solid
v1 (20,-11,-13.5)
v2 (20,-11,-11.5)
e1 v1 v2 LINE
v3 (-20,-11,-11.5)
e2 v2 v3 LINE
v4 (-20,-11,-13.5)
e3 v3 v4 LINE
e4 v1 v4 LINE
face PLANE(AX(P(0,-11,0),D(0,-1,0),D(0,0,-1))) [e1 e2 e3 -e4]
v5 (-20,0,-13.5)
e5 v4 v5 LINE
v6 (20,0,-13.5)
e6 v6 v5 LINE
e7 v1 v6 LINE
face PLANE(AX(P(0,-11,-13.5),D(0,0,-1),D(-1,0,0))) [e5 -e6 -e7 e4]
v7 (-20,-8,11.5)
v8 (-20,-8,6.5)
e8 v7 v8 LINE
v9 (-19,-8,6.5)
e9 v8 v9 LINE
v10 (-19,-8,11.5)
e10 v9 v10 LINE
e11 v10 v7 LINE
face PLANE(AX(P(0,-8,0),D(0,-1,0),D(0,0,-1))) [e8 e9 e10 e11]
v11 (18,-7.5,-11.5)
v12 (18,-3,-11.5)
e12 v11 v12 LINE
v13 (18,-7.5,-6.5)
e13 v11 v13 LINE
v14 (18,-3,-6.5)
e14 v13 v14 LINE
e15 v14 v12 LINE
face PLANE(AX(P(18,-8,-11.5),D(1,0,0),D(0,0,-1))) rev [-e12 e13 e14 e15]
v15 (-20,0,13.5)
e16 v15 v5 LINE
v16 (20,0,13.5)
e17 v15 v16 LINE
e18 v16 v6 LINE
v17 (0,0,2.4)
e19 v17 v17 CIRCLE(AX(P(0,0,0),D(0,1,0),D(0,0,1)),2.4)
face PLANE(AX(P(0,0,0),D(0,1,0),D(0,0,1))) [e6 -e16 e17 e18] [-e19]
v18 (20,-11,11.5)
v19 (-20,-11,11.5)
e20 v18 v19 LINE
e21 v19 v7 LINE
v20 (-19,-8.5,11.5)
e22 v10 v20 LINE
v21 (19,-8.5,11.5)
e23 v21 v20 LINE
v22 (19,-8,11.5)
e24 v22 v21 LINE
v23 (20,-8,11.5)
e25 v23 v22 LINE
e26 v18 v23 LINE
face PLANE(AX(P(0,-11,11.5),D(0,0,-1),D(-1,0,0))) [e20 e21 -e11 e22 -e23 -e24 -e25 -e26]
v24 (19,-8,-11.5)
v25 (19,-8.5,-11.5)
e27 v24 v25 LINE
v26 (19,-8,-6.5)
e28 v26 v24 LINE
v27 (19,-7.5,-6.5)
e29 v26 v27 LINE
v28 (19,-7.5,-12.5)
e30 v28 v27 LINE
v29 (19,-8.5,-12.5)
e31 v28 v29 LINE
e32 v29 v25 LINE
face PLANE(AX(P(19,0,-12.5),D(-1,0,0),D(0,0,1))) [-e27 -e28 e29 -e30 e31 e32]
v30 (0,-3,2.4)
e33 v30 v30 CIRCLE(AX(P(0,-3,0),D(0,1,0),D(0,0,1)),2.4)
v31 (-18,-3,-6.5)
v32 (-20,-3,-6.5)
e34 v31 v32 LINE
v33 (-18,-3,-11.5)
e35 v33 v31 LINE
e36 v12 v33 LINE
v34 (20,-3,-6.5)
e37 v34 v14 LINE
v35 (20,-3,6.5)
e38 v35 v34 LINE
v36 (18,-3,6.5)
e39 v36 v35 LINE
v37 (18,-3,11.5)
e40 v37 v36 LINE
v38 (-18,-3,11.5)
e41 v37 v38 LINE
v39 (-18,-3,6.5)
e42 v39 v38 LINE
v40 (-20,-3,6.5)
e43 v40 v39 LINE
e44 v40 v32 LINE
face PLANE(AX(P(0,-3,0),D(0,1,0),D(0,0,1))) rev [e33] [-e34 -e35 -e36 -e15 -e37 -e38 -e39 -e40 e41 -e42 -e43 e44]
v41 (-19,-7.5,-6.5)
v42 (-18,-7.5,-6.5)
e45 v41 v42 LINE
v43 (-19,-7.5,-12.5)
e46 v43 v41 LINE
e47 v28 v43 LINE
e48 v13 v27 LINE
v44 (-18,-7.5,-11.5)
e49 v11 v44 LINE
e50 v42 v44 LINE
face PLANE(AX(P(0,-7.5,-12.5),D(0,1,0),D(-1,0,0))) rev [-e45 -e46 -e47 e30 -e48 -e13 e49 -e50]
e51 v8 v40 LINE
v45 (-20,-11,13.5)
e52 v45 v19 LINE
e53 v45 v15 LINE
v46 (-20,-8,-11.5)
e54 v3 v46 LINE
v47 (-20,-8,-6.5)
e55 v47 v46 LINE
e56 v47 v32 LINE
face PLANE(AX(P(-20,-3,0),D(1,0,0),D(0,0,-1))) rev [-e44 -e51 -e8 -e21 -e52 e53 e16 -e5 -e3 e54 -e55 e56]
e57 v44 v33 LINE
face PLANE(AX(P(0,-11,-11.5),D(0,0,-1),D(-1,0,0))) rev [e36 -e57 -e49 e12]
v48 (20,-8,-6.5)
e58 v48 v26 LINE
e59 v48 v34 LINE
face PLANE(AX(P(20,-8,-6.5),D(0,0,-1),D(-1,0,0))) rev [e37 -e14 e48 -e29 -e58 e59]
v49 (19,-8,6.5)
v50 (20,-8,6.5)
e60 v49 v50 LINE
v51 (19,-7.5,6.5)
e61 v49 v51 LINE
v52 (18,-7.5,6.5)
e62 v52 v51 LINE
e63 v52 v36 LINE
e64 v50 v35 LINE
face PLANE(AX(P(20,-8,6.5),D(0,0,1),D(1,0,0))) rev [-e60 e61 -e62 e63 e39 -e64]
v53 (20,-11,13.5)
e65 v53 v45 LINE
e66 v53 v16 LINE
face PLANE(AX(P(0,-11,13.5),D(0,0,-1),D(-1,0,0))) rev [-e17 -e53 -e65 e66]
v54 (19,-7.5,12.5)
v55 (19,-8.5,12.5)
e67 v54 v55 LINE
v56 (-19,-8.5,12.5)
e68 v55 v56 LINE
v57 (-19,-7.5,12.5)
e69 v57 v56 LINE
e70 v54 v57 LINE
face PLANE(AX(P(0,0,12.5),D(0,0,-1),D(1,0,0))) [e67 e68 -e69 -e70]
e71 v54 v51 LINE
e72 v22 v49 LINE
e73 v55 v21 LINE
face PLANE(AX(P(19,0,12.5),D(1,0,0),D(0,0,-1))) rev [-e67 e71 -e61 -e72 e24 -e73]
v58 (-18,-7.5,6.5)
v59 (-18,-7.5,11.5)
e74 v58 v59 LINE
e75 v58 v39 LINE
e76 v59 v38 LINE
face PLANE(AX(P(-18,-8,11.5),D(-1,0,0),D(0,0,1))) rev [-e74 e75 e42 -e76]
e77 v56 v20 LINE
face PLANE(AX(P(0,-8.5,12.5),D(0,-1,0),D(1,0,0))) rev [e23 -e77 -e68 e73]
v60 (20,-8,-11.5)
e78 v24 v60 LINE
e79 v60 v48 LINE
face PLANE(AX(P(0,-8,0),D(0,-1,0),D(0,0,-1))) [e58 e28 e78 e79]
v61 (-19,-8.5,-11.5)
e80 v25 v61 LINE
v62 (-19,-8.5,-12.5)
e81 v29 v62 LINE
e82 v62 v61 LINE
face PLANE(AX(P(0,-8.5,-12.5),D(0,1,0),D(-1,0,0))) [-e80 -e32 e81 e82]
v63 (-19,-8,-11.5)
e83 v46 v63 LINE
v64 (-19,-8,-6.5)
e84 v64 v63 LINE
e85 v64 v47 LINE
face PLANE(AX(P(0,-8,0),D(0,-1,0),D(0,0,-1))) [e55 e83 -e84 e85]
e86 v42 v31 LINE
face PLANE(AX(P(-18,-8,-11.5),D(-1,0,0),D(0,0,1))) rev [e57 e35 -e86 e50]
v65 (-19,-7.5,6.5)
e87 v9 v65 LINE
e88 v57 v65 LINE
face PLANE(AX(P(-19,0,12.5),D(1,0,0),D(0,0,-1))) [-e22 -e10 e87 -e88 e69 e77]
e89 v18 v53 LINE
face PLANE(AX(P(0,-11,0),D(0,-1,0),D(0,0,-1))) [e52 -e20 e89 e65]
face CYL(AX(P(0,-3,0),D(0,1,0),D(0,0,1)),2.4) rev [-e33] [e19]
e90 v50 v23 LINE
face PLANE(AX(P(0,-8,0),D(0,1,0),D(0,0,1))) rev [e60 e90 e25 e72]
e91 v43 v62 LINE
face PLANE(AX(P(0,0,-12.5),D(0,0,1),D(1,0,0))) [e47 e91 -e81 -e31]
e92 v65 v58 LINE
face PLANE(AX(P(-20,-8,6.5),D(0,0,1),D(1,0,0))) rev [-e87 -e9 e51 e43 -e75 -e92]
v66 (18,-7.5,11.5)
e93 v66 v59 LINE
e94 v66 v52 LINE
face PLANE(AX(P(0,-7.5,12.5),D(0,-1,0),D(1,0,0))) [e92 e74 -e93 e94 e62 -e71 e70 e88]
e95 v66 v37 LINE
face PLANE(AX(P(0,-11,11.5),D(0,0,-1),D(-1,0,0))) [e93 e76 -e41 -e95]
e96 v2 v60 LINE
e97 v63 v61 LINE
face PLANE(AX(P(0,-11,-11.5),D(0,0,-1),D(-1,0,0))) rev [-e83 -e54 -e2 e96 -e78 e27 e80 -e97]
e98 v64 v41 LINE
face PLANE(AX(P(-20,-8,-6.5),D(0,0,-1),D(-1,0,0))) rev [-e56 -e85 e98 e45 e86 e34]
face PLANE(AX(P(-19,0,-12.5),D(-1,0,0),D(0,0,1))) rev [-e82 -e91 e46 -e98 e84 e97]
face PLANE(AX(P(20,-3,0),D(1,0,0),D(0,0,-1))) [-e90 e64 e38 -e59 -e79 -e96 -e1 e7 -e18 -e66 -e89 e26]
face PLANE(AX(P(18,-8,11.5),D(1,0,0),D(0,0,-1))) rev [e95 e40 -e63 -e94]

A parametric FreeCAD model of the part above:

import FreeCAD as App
import Part
import Sketcher

V = App.Vector

doc = App.newDocument("Part")
body = doc.addObject("PartDesign::Body", "Body")

sketch1 = body.newObject("Sketcher::SketchObject", "Sketch")
sketch1.AttachmentSupport = (doc.getObject("XZ_Plane"), [""])
sketch1.MapMode = "FlatFace"
sketch1.addGeometry(Part.LineSegment(V(-20, -20, 0), V(-20, 20, 0)), False)
sketch1.addGeometry(Part.LineSegment(V(-20, 20, 0), V(20, 20, 0)), False)
sketch1.addGeometry(Part.LineSegment(V(20, 20, 0), V(20, -20, 0)), False)
sketch1.addGeometry(Part.LineSegment(V(20, -20, 0), V(-20, -20, 0)), False)
sketch1.addGeometry(Part.Circle(V(0, 0, 0), V(0, 0, 1), 2.4), False)
sketch1.addConstraint(Sketcher.Constraint("Coincident", 0, 2, 1, 1))
sketch1.addConstraint(Sketcher.Constraint("Coincident", 1, 2, 2, 1))
sketch1.addConstraint(Sketcher.Constraint("Coincident", 2, 2, 3, 1))
sketch1.addConstraint(Sketcher.Constraint("Coincident", 3, 2, 0, 1))
sketch1.addConstraint(Sketcher.Constraint("Vertical", 0))
sketch1.addConstraint(Sketcher.Constraint("Horizontal", 1))
sketch1.addConstraint(Sketcher.Constraint("Vertical", 2))
sketch1.addConstraint(Sketcher.Constraint("Horizontal", 3))
sketch1.addConstraint(Sketcher.Constraint("Coincident", 4, 3, -1, 1))
sketch1.addConstraint(Sketcher.Constraint("Symmetric", 0, 2, 2, 2, -1, 1))
sketch1.addConstraint(Sketcher.Constraint("Equal", 3, 0))
sketch1.addConstraint(Sketcher.Constraint("Diameter", 4, 4.8))
sketch1.addConstraint(Sketcher.Constraint("DistanceX", 1, 1, 1, 2, 40.0))
pad1 = body.newObject("PartDesign::Pad", "Pad")
pad1.Profile = sketch1
pad1.Length = 3

sketch2 = body.newObject("Sketcher::SketchObject", "Sketch001")
sketch2.AttachmentSupport = (doc.getObject("XZ_Plane"), [""])
sketch2.MapMode = "FlatFace"
sketch2.AttachmentOffset = App.Placement(V(0, 0, 3), App.Rotation())
sketch2.addGeometry(Part.LineSegment(V(20, -11.5, 0), V(-20, -11.5, 0)), False)
sketch2.addGeometry(Part.LineSegment(V(-20, -11.5, 0), V(-20, -13.5, 0)), False)
sketch2.addGeometry(Part.LineSegment(V(-20, -13.5, 0), V(20, -13.5, 0)), False)
sketch2.addGeometry(Part.LineSegment(V(20, -13.5, 0), V(20, -11.5, 0)), False)
sketch2.addGeometry(Part.LineSegment(V(-20, 11.5, 0), V(20, 11.5, 0)), False)
sketch2.addGeometry(Part.LineSegment(V(20, 11.5, 0), V(20, 13.5, 0)), False)
sketch2.addGeometry(Part.LineSegment(V(20, 13.5, 0), V(-20, 13.5, 0)), False)
sketch2.addGeometry(Part.LineSegment(V(-20, 13.5, 0), V(-20, 11.5, 0)), False)
sketch2.addConstraint(Sketcher.Constraint("Coincident", 0, 2, 1, 1))
sketch2.addConstraint(Sketcher.Constraint("Coincident", 1, 2, 2, 1))
sketch2.addConstraint(Sketcher.Constraint("Coincident", 2, 2, 3, 1))
sketch2.addConstraint(Sketcher.Constraint("Coincident", 3, 2, 0, 1))
sketch2.addConstraint(Sketcher.Constraint("Coincident", 4, 2, 5, 1))
sketch2.addConstraint(Sketcher.Constraint("Coincident", 5, 2, 6, 1))
sketch2.addConstraint(Sketcher.Constraint("Coincident", 6, 2, 7, 1))
sketch2.addConstraint(Sketcher.Constraint("Coincident", 7, 2, 4, 1))
sketch2.addConstraint(Sketcher.Constraint("Horizontal", 0))
sketch2.addConstraint(Sketcher.Constraint("Vertical", 1))
sketch2.addConstraint(Sketcher.Constraint("Horizontal", 2))
sketch2.addConstraint(Sketcher.Constraint("Vertical", 3))
sketch2.addConstraint(Sketcher.Constraint("Horizontal", 4))
sketch2.addConstraint(Sketcher.Constraint("Vertical", 5))
sketch2.addConstraint(Sketcher.Constraint("Horizontal", 6))
sketch2.addConstraint(Sketcher.Constraint("Vertical", 7))
sketch2.addConstraint(Sketcher.Constraint("Symmetric", 0, 2, 4, 2, -1, 1))
sketch2.addConstraint(Sketcher.Constraint("Symmetric", 2, 2, 6, 2, -1, 1))
sketch2.addConstraint(Sketcher.Constraint("Vertical", 3, 2, 4, 2))
sketch2.addConstraint(Sketcher.Constraint("DistanceX", 0, 2, 0, 1, 40.0))
sketch2.addConstraint(Sketcher.Constraint("DistanceY", 1, 2, 1, 1, 2.0))
sketch2.addConstraint(Sketcher.Constraint("DistanceY", 3, 2, 4, 2, 23.0))
pad2 = body.newObject("PartDesign::Pad", "Pad001")
pad2.Profile = sketch2
pad2.Length = 8

sketch3 = body.newObject("Sketcher::SketchObject", "Sketch002")
sketch3.AttachmentSupport = (doc.getObject("XZ_Plane"), [""])
sketch3.MapMode = "FlatFace"
sketch3.AttachmentOffset = App.Placement(V(0, 0, 3), App.Rotation())
sketch3.addGeometry(Part.LineSegment(V(18, 11.5, 0), V(18, 6.5, 0)), False)
sketch3.addGeometry(Part.LineSegment(V(18, 6.5, 0), V(20, 6.5, 0)), False)
sketch3.addGeometry(Part.LineSegment(V(20, 6.5, 0), V(20, 11.5, 0)), False)
sketch3.addGeometry(Part.LineSegment(V(20, 11.5, 0), V(18, 11.5, 0)), False)
sketch3.addGeometry(Part.LineSegment(V(18, -6.5, 0), V(18, -11.5, 0)), False)
sketch3.addGeometry(Part.LineSegment(V(18, -11.5, 0), V(20, -11.5, 0)), False)
sketch3.addGeometry(Part.LineSegment(V(20, -11.5, 0), V(20, -6.5, 0)), False)
sketch3.addGeometry(Part.LineSegment(V(20, -6.5, 0), V(18, -6.5, 0)), False)
sketch3.addGeometry(Part.LineSegment(V(-20, -6.5, 0), V(-20, -11.5, 0)), False)
sketch3.addGeometry(Part.LineSegment(V(-20, -11.5, 0), V(-18, -11.5, 0)), False)
sketch3.addGeometry(Part.LineSegment(V(-18, -11.5, 0), V(-18, -6.5, 0)), False)
sketch3.addGeometry(Part.LineSegment(V(-18, -6.5, 0), V(-20, -6.5, 0)), False)
sketch3.addGeometry(Part.LineSegment(V(-20, 11.5, 0), V(-20, 6.5, 0)), False)
sketch3.addGeometry(Part.LineSegment(V(-20, 6.5, 0), V(-18, 6.5, 0)), False)
sketch3.addGeometry(Part.LineSegment(V(-18, 6.5, 0), V(-18, 11.5, 0)), False)
sketch3.addGeometry(Part.LineSegment(V(-18, 11.5, 0), V(-20, 11.5, 0)), False)
sketch3.addConstraint(Sketcher.Constraint("Coincident", 0, 2, 1, 1))
sketch3.addConstraint(Sketcher.Constraint("Coincident", 1, 2, 2, 1))
sketch3.addConstraint(Sketcher.Constraint("Coincident", 2, 2, 3, 1))
sketch3.addConstraint(Sketcher.Constraint("Coincident", 3, 2, 0, 1))
sketch3.addConstraint(Sketcher.Constraint("Coincident", 4, 2, 5, 1))
sketch3.addConstraint(Sketcher.Constraint("Coincident", 5, 2, 6, 1))
sketch3.addConstraint(Sketcher.Constraint("Coincident", 6, 2, 7, 1))
sketch3.addConstraint(Sketcher.Constraint("Coincident", 7, 2, 4, 1))
sketch3.addConstraint(Sketcher.Constraint("Coincident", 8, 2, 9, 1))
sketch3.addConstraint(Sketcher.Constraint("Coincident", 9, 2, 10, 1))
sketch3.addConstraint(Sketcher.Constraint("Coincident", 10, 2, 11, 1))
sketch3.addConstraint(Sketcher.Constraint("Coincident", 11, 2, 8, 1))
sketch3.addConstraint(Sketcher.Constraint("Coincident", 12, 2, 13, 1))
sketch3.addConstraint(Sketcher.Constraint("Coincident", 13, 2, 14, 1))
sketch3.addConstraint(Sketcher.Constraint("Coincident", 14, 2, 15, 1))
sketch3.addConstraint(Sketcher.Constraint("Coincident", 15, 2, 12, 1))
sketch3.addConstraint(Sketcher.Constraint("Vertical", 0))
sketch3.addConstraint(Sketcher.Constraint("Horizontal", 1))
sketch3.addConstraint(Sketcher.Constraint("Vertical", 2))
sketch3.addConstraint(Sketcher.Constraint("Horizontal", 3))
sketch3.addConstraint(Sketcher.Constraint("Vertical", 4))
sketch3.addConstraint(Sketcher.Constraint("Horizontal", 5))
sketch3.addConstraint(Sketcher.Constraint("Vertical", 6))
sketch3.addConstraint(Sketcher.Constraint("Horizontal", 7))
sketch3.addConstraint(Sketcher.Constraint("Vertical", 8))
sketch3.addConstraint(Sketcher.Constraint("Horizontal", 9))
sketch3.addConstraint(Sketcher.Constraint("Vertical", 10))
sketch3.addConstraint(Sketcher.Constraint("Horizontal", 11))
sketch3.addConstraint(Sketcher.Constraint("Vertical", 12))
sketch3.addConstraint(Sketcher.Constraint("Horizontal", 13))
sketch3.addConstraint(Sketcher.Constraint("Vertical", 14))
sketch3.addConstraint(Sketcher.Constraint("Horizontal", 15))
sketch3.addConstraint(Sketcher.Constraint("Symmetric", 2, 2, 8, 2, -1, 1))
sketch3.addConstraint(Sketcher.Constraint("Symmetric", 0, 2, 10, 2, -1, 1))
sketch3.addConstraint(Sketcher.Constraint("Symmetric", 6, 2, 12, 2, -1, 1))
sketch3.addConstraint(Sketcher.Constraint("Symmetric", 4, 2, 14, 2, -1, 1))
sketch3.addConstraint(Sketcher.Constraint("Symmetric", 5, 2, 8, 2, -2))
sketch3.addConstraint(Sketcher.Constraint("Symmetric", 7, 2, 10, 2, -2))
sketch3.addConstraint(Sketcher.Constraint("DistanceX", 1, 1, 1, 2, 2.0))
sketch3.addConstraint(Sketcher.Constraint("DistanceY", 0, 2, 0, 1, 5.0))
sketch3.addConstraint(Sketcher.Constraint("DistanceX", -1, 1, 0, 2, 18.0))
sketch3.addConstraint(Sketcher.Constraint("DistanceY", 4, 2, 0, 2, 18.0))
pad3 = body.newObject("PartDesign::Pad", "Pad002")
pad3.Profile = sketch3
pad3.Length = 5

sketch4 = body.newObject("Sketcher::SketchObject", "Sketch003")
sketch4.AttachmentSupport = (doc.getObject("XZ_Plane"), [""])
sketch4.MapMode = "FlatFace"
sketch4.AttachmentOffset = App.Placement(V(0, 0, 3), App.Rotation())
sketch4.addGeometry(Part.LineSegment(V(20, 13.5, 0), V(20, 20, 0)), False)
sketch4.addGeometry(Part.LineSegment(V(20, 20, 0), V(-20, 20, 0)), False)
sketch4.addGeometry(Part.LineSegment(V(-20, 20, 0), V(-20, 13.5, 0)), False)
sketch4.addGeometry(Part.LineSegment(V(-20, 13.5, 0), V(20, 13.5, 0)), False)
sketch4.addConstraint(Sketcher.Constraint("Coincident", 0, 2, 1, 1))
sketch4.addConstraint(Sketcher.Constraint("Coincident", 1, 2, 2, 1))
sketch4.addConstraint(Sketcher.Constraint("Coincident", 2, 2, 3, 1))
sketch4.addConstraint(Sketcher.Constraint("Coincident", 3, 2, 0, 1))
sketch4.addConstraint(Sketcher.Constraint("Vertical", 0))
sketch4.addConstraint(Sketcher.Constraint("Horizontal", 1))
sketch4.addConstraint(Sketcher.Constraint("Vertical", 2))
sketch4.addConstraint(Sketcher.Constraint("Horizontal", 3))
sketch4.addConstraint(Sketcher.Constraint("DistanceX", 1, 2, 1, 1, 40.0))
sketch4.addConstraint(Sketcher.Constraint("DistanceY", 0, 1, 0, 2, 6.5))
sketch4.addConstraint(Sketcher.Constraint("DistanceX", -1, 1, 0, 2, 20.0))
sketch4.addConstraint(Sketcher.Constraint("DistanceY", -1, 1, 0, 2, 20.0))
pocket1 = body.newObject("PartDesign::Pocket", "Pocket")
pocket1.Profile = sketch4
pocket1.Length = 3

sketch5 = body.newObject("Sketcher::SketchObject", "Sketch004")
sketch5.AttachmentSupport = (doc.getObject("XZ_Plane"), [""])
sketch5.MapMode = "FlatFace"
sketch5.AttachmentOffset = App.Placement(V(0, 0, 3), App.Rotation())
sketch5.addGeometry(Part.LineSegment(V(-20, -13.5, 0), V(-20, -20, 0)), False)
sketch5.addGeometry(Part.LineSegment(V(-20, -20, 0), V(20, -20, 0)), False)
sketch5.addGeometry(Part.LineSegment(V(20, -20, 0), V(20, -13.5, 0)), False)
sketch5.addGeometry(Part.LineSegment(V(20, -13.5, 0), V(-20, -13.5, 0)), False)
sketch5.addConstraint(Sketcher.Constraint("Coincident", 0, 2, 1, 1))
sketch5.addConstraint(Sketcher.Constraint("Coincident", 1, 2, 2, 1))
sketch5.addConstraint(Sketcher.Constraint("Coincident", 2, 2, 3, 1))
sketch5.addConstraint(Sketcher.Constraint("Coincident", 3, 2, 0, 1))
sketch5.addConstraint(Sketcher.Constraint("Vertical", 0))
sketch5.addConstraint(Sketcher.Constraint("Horizontal", 1))
sketch5.addConstraint(Sketcher.Constraint("Vertical", 2))
sketch5.addConstraint(Sketcher.Constraint("Horizontal", 3))
sketch5.addConstraint(Sketcher.Constraint("DistanceX", 1, 1, 1, 2, 40.0))
sketch5.addConstraint(Sketcher.Constraint("DistanceY", 0, 2, 0, 1, 6.5))
sketch5.addConstraint(Sketcher.Constraint("DistanceX", 0, 2, -1, 1, 20.0))
sketch5.addConstraint(Sketcher.Constraint("DistanceY", 0, 2, -1, 1, 20.0))
pocket2 = body.newObject("PartDesign::Pocket", "Pocket001")
pocket2.Profile = sketch5
pocket2.Length = 3

sketch6 = body.newObject("Sketcher::SketchObject", "Sketch005")
sketch6.AttachmentSupport = (doc.getObject("XY_Plane"), [""])
sketch6.MapMode = "FlatFace"
sketch6.AttachmentOffset = App.Placement(V(0, 0, -12.5), App.Rotation())
sketch6.addGeometry(Part.LineSegment(V(19, -7.5, 0), V(-19, -7.5, 0)), False)
sketch6.addGeometry(Part.LineSegment(V(-19, -7.5, 0), V(-19, -8.5, 0)), False)
sketch6.addGeometry(Part.LineSegment(V(-19, -8.5, 0), V(19, -8.5, 0)), False)
sketch6.addGeometry(Part.LineSegment(V(19, -8.5, 0), V(19, -7.5, 0)), False)
sketch6.addConstraint(Sketcher.Constraint("Coincident", 0, 2, 1, 1))
sketch6.addConstraint(Sketcher.Constraint("Coincident", 1, 2, 2, 1))
sketch6.addConstraint(Sketcher.Constraint("Coincident", 2, 2, 3, 1))
sketch6.addConstraint(Sketcher.Constraint("Coincident", 3, 2, 0, 1))
sketch6.addConstraint(Sketcher.Constraint("Horizontal", 0))
sketch6.addConstraint(Sketcher.Constraint("Vertical", 1))
sketch6.addConstraint(Sketcher.Constraint("Horizontal", 2))
sketch6.addConstraint(Sketcher.Constraint("Vertical", 3))
sketch6.addConstraint(Sketcher.Constraint("DistanceX", 0, 2, 0, 1, 38.0))
sketch6.addConstraint(Sketcher.Constraint("DistanceY", 1, 2, 1, 1, 1.0))
sketch6.addConstraint(Sketcher.Constraint("DistanceX", 0, 2, -1, 1, 19.0))
sketch6.addConstraint(Sketcher.Constraint("DistanceY", 0, 2, -1, 1, 7.5))
pocket3 = body.newObject("PartDesign::Pocket", "Pocket002")
pocket3.Profile = sketch6
pocket3.Length = 6
pocket3.Reversed = True
doc.recompute()

mirrored = body.newObject("PartDesign::Mirrored", "Mirrored")
mirrored.Originals = [pocket3]
mirrored.MirrorPlane = (doc.getObject("XY_Plane"), [""])
body.Tip = mirrored

doc.recompute()
